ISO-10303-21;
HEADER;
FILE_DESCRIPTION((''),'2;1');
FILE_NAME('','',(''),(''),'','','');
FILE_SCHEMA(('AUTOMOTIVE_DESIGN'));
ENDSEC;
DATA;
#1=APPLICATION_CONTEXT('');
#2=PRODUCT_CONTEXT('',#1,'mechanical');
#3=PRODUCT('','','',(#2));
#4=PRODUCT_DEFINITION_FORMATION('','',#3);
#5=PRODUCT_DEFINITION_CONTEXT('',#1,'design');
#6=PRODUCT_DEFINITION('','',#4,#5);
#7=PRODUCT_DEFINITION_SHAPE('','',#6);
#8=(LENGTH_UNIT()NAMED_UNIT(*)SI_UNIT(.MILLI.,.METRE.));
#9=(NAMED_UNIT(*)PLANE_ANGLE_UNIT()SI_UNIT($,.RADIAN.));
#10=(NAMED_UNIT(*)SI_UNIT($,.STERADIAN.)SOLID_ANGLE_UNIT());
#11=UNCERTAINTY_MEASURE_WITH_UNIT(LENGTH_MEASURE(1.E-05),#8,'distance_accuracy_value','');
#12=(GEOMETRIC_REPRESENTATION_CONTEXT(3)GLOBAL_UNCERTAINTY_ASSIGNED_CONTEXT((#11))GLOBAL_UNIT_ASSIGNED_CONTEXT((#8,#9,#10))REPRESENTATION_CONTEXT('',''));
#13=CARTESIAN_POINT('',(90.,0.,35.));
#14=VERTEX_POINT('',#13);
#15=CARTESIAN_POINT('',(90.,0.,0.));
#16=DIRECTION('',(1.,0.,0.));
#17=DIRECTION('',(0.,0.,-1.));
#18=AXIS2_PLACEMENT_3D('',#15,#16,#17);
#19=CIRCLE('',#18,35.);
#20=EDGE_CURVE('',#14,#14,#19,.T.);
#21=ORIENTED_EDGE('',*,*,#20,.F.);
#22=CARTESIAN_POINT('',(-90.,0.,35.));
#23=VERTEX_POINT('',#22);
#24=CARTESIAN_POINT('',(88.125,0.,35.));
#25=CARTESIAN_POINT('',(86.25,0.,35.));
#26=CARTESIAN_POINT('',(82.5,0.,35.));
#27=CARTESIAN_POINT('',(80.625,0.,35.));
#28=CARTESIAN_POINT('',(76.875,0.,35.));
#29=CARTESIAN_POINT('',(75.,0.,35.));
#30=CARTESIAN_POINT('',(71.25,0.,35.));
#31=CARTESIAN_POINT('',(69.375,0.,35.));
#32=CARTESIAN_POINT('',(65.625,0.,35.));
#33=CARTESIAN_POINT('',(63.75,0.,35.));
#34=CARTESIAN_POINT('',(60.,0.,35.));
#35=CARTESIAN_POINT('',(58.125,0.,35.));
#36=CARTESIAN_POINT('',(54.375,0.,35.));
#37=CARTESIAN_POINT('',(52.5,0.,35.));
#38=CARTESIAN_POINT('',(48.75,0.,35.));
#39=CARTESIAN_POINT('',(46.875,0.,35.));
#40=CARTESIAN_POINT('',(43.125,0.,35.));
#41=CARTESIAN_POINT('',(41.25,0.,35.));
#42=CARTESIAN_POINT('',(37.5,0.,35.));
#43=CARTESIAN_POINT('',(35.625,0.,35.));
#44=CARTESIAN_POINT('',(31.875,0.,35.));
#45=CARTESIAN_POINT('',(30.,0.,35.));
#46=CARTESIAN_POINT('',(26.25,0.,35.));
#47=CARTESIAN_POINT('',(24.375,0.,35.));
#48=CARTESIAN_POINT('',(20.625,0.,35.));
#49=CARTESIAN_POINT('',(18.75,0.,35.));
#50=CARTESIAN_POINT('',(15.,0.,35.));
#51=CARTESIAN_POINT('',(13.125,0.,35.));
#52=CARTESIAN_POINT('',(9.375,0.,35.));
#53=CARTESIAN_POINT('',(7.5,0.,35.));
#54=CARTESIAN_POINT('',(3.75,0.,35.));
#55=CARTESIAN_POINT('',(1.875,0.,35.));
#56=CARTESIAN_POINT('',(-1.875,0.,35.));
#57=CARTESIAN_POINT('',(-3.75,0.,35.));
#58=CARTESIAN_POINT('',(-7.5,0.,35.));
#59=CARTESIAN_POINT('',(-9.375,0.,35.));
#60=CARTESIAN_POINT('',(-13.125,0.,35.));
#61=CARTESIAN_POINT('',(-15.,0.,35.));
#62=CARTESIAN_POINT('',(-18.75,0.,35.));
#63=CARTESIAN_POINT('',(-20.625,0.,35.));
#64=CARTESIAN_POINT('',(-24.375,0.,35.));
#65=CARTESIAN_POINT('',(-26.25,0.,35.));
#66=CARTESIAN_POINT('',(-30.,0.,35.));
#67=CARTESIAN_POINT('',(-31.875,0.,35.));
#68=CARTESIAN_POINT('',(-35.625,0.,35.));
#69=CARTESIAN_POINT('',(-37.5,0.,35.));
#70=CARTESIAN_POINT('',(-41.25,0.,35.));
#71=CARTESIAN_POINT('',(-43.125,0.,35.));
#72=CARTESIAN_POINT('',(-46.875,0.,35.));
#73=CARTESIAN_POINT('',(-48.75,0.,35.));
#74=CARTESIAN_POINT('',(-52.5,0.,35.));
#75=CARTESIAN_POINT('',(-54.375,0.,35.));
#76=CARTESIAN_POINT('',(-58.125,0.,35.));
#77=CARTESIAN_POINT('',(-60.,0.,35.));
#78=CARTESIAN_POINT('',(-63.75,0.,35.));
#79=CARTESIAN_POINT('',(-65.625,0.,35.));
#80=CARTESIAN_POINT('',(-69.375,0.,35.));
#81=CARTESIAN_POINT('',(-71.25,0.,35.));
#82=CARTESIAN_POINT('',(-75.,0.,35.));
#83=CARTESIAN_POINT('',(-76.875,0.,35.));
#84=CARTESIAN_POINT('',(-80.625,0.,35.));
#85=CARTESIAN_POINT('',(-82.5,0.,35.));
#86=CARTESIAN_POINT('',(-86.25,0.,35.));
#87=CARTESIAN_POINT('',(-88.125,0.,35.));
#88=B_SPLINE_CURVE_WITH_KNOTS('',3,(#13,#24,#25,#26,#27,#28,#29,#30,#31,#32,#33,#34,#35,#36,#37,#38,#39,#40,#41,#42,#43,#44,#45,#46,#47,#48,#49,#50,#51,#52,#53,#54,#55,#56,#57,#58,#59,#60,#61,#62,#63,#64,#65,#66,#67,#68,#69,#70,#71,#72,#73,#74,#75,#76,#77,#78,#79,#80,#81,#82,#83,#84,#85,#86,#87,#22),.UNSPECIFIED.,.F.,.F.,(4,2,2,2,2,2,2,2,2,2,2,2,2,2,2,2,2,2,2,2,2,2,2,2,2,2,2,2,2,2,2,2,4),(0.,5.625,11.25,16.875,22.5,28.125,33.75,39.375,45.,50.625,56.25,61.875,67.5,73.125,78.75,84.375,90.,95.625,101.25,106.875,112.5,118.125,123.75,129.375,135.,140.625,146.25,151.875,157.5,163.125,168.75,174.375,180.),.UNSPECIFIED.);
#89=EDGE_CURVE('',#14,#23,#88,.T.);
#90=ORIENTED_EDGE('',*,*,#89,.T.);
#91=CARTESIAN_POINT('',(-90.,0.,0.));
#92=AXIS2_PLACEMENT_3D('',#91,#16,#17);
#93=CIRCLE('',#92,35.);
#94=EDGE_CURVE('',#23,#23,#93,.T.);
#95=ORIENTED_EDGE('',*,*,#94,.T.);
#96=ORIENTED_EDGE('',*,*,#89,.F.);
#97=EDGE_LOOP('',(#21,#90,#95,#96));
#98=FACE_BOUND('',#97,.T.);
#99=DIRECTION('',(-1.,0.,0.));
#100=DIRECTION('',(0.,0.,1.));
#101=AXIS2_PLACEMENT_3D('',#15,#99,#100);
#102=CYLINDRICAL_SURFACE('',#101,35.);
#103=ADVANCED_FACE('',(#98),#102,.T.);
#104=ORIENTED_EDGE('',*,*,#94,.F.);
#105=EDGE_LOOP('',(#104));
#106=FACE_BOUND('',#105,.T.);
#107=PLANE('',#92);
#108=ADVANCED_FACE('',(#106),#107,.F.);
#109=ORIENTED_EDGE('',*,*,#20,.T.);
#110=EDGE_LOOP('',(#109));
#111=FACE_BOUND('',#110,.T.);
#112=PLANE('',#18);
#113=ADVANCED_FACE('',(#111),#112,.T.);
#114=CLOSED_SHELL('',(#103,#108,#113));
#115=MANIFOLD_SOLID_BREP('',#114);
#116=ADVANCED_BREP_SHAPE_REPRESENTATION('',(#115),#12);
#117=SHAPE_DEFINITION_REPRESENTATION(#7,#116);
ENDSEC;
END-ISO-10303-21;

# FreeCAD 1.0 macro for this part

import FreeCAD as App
import Part
import Sketcher
from FreeCAD import Vector
Q = App.Units.Quantity

doc = App.newDocument("Part")
params = doc.addObject("Spreadsheet::Sheet", "Params")
for row, (alias, value) in enumerate([
    ("sketch1_diameter", "70 mm"),
    ("pad1_length", "180 mm"),
], start=1):
    params.set(f"A{row}", alias)
    params.set(f"B{row}", "=" + value)
    params.setAlias(f"B{row}", alias)

body = doc.addObject("PartDesign::Body", "Body")

sketch1 = doc.addObject("Sketcher::SketchObject", "Sketch")
body.addObject(sketch1)
sketch1.AttachmentSupport = (doc.YZ_Plane, [""])
sketch1.MapMode = "FlatFace"
sketch1.addGeometry(Part.Circle(Vector(0, 0, 0), Vector(0, 0, 1), 35), False)
sketch1.addConstraint(Sketcher.Constraint("Coincident", 0, 3, -1, 1))
sketch1.addConstraint(Sketcher.Constraint("Diameter", 0, Q("70 mm")))
sketch1.setExpression("Constraints[1]", "Params.sketch1_diameter")
pad1 = doc.addObject("PartDesign::Pad", "Pad")
body.addObject(pad1)
pad1.Profile = sketch1
pad1.setExpression("Length", "Params.pad1_length")
pad1.Midplane = True

doc.recompute()
